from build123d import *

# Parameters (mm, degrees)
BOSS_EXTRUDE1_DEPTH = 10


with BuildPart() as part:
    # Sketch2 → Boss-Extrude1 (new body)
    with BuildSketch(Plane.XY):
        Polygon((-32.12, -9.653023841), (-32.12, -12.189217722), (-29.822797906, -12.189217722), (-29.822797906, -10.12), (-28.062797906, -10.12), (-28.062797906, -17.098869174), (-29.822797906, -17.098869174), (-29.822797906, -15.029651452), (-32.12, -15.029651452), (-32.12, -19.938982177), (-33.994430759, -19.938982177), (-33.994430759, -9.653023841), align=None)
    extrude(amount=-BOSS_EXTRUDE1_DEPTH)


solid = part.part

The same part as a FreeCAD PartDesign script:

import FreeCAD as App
import Part
import Sketcher

V = App.Vector


def add_polygon(sketch, points):
    """Adds a closed chain of lines whose ends are joined by coincident constraints."""
    first, n = sketch.GeometryCount, len(points)
    for a, b in zip(points, points[1:] + points[:1]):
        sketch.addGeometry(Part.LineSegment(App.Vector(*a, 0), App.Vector(*b, 0)), False)
    for i in range(n):
        sketch.addConstraint(Sketcher.Constraint("Coincident", first + i, 2, first + (i + 1) % n, 1))

doc = App.newDocument("Part")
body = doc.addObject("PartDesign::Body", "Body")

sketch1 = body.newObject("Sketcher::SketchObject", "Sketch")
sketch1.AttachmentSupport = (doc.getObject("XY_Plane"), [""])
sketch1.MapMode = "FlatFace"
add_polygon(sketch1, [(-32.12, -12.189218), (-32.12, -9.653024), (-33.994431, -9.653024), (-33.994431, -19.938982), (-32.12, -19.938982), (-32.12, -15.029651), (-29.822798, -15.029651), (-29.822798, -17.098869), (-28.062798, -17.098869), (-28.062798, -10.12), (-29.822798, -10.12), (-29.822798, -12.189218)])
sketch1.addConstraint([
    Sketcher.Constraint("Vertical", 0),
    Sketcher.Constraint("Horizontal", 1),
    Sketcher.Constraint("Vertical", 2),
    Sketcher.Constraint("Horizontal", 3),
    Sketcher.Constraint("Vertical", 4),
    Sketcher.Constraint("Horizontal", 5),
    Sketcher.Constraint("Vertical", 6),
    Sketcher.Constraint("Horizontal", 7),
    Sketcher.Constraint("Vertical", 8),
    Sketcher.Constraint("Horizontal", 9),
    Sketcher.Constraint("Vertical", 10),
    Sketcher.Constraint("Horizontal", 11),
    Sketcher.Constraint("Vertical", 0, 2, 3, 2),
    Sketcher.Constraint("Vertical", 6, 2, 9, 2),
    Sketcher.Constraint("Equal", 6, 10),
    Sketcher.Constraint("DistanceX", 7, 1, 7, 2, 1.76),
    Sketcher.Constraint("DistanceX", 0, 2, -1, 1, 32.12),
    Sketcher.Constraint("DistanceY", 8, 2, -1, 1, 10.12),
    Sketcher.Constraint("DistanceX", 1, 2, 1, 1, 1.874431),
    Sketcher.Constraint("DistanceY", 2, 2, 2, 1, 10.285958),
    Sketcher.Constraint("DistanceY", 4, 1, 4, 2, 4.909331),
    Sketcher.Constraint("DistanceY", 8, 1, 8, 2, 6.978869),
    Sketcher.Constraint("DistanceX", 5, 1, 5, 2, 2.297202),
    Sketcher.Constraint("DistanceY", 0, 1, 0, 2, 2.536194),
])
pad1 = body.newObject("PartDesign::Pad", "Pad")
pad1.Profile = sketch1
pad1.Length = 10
pad1.Reversed = True

doc.recompute()
